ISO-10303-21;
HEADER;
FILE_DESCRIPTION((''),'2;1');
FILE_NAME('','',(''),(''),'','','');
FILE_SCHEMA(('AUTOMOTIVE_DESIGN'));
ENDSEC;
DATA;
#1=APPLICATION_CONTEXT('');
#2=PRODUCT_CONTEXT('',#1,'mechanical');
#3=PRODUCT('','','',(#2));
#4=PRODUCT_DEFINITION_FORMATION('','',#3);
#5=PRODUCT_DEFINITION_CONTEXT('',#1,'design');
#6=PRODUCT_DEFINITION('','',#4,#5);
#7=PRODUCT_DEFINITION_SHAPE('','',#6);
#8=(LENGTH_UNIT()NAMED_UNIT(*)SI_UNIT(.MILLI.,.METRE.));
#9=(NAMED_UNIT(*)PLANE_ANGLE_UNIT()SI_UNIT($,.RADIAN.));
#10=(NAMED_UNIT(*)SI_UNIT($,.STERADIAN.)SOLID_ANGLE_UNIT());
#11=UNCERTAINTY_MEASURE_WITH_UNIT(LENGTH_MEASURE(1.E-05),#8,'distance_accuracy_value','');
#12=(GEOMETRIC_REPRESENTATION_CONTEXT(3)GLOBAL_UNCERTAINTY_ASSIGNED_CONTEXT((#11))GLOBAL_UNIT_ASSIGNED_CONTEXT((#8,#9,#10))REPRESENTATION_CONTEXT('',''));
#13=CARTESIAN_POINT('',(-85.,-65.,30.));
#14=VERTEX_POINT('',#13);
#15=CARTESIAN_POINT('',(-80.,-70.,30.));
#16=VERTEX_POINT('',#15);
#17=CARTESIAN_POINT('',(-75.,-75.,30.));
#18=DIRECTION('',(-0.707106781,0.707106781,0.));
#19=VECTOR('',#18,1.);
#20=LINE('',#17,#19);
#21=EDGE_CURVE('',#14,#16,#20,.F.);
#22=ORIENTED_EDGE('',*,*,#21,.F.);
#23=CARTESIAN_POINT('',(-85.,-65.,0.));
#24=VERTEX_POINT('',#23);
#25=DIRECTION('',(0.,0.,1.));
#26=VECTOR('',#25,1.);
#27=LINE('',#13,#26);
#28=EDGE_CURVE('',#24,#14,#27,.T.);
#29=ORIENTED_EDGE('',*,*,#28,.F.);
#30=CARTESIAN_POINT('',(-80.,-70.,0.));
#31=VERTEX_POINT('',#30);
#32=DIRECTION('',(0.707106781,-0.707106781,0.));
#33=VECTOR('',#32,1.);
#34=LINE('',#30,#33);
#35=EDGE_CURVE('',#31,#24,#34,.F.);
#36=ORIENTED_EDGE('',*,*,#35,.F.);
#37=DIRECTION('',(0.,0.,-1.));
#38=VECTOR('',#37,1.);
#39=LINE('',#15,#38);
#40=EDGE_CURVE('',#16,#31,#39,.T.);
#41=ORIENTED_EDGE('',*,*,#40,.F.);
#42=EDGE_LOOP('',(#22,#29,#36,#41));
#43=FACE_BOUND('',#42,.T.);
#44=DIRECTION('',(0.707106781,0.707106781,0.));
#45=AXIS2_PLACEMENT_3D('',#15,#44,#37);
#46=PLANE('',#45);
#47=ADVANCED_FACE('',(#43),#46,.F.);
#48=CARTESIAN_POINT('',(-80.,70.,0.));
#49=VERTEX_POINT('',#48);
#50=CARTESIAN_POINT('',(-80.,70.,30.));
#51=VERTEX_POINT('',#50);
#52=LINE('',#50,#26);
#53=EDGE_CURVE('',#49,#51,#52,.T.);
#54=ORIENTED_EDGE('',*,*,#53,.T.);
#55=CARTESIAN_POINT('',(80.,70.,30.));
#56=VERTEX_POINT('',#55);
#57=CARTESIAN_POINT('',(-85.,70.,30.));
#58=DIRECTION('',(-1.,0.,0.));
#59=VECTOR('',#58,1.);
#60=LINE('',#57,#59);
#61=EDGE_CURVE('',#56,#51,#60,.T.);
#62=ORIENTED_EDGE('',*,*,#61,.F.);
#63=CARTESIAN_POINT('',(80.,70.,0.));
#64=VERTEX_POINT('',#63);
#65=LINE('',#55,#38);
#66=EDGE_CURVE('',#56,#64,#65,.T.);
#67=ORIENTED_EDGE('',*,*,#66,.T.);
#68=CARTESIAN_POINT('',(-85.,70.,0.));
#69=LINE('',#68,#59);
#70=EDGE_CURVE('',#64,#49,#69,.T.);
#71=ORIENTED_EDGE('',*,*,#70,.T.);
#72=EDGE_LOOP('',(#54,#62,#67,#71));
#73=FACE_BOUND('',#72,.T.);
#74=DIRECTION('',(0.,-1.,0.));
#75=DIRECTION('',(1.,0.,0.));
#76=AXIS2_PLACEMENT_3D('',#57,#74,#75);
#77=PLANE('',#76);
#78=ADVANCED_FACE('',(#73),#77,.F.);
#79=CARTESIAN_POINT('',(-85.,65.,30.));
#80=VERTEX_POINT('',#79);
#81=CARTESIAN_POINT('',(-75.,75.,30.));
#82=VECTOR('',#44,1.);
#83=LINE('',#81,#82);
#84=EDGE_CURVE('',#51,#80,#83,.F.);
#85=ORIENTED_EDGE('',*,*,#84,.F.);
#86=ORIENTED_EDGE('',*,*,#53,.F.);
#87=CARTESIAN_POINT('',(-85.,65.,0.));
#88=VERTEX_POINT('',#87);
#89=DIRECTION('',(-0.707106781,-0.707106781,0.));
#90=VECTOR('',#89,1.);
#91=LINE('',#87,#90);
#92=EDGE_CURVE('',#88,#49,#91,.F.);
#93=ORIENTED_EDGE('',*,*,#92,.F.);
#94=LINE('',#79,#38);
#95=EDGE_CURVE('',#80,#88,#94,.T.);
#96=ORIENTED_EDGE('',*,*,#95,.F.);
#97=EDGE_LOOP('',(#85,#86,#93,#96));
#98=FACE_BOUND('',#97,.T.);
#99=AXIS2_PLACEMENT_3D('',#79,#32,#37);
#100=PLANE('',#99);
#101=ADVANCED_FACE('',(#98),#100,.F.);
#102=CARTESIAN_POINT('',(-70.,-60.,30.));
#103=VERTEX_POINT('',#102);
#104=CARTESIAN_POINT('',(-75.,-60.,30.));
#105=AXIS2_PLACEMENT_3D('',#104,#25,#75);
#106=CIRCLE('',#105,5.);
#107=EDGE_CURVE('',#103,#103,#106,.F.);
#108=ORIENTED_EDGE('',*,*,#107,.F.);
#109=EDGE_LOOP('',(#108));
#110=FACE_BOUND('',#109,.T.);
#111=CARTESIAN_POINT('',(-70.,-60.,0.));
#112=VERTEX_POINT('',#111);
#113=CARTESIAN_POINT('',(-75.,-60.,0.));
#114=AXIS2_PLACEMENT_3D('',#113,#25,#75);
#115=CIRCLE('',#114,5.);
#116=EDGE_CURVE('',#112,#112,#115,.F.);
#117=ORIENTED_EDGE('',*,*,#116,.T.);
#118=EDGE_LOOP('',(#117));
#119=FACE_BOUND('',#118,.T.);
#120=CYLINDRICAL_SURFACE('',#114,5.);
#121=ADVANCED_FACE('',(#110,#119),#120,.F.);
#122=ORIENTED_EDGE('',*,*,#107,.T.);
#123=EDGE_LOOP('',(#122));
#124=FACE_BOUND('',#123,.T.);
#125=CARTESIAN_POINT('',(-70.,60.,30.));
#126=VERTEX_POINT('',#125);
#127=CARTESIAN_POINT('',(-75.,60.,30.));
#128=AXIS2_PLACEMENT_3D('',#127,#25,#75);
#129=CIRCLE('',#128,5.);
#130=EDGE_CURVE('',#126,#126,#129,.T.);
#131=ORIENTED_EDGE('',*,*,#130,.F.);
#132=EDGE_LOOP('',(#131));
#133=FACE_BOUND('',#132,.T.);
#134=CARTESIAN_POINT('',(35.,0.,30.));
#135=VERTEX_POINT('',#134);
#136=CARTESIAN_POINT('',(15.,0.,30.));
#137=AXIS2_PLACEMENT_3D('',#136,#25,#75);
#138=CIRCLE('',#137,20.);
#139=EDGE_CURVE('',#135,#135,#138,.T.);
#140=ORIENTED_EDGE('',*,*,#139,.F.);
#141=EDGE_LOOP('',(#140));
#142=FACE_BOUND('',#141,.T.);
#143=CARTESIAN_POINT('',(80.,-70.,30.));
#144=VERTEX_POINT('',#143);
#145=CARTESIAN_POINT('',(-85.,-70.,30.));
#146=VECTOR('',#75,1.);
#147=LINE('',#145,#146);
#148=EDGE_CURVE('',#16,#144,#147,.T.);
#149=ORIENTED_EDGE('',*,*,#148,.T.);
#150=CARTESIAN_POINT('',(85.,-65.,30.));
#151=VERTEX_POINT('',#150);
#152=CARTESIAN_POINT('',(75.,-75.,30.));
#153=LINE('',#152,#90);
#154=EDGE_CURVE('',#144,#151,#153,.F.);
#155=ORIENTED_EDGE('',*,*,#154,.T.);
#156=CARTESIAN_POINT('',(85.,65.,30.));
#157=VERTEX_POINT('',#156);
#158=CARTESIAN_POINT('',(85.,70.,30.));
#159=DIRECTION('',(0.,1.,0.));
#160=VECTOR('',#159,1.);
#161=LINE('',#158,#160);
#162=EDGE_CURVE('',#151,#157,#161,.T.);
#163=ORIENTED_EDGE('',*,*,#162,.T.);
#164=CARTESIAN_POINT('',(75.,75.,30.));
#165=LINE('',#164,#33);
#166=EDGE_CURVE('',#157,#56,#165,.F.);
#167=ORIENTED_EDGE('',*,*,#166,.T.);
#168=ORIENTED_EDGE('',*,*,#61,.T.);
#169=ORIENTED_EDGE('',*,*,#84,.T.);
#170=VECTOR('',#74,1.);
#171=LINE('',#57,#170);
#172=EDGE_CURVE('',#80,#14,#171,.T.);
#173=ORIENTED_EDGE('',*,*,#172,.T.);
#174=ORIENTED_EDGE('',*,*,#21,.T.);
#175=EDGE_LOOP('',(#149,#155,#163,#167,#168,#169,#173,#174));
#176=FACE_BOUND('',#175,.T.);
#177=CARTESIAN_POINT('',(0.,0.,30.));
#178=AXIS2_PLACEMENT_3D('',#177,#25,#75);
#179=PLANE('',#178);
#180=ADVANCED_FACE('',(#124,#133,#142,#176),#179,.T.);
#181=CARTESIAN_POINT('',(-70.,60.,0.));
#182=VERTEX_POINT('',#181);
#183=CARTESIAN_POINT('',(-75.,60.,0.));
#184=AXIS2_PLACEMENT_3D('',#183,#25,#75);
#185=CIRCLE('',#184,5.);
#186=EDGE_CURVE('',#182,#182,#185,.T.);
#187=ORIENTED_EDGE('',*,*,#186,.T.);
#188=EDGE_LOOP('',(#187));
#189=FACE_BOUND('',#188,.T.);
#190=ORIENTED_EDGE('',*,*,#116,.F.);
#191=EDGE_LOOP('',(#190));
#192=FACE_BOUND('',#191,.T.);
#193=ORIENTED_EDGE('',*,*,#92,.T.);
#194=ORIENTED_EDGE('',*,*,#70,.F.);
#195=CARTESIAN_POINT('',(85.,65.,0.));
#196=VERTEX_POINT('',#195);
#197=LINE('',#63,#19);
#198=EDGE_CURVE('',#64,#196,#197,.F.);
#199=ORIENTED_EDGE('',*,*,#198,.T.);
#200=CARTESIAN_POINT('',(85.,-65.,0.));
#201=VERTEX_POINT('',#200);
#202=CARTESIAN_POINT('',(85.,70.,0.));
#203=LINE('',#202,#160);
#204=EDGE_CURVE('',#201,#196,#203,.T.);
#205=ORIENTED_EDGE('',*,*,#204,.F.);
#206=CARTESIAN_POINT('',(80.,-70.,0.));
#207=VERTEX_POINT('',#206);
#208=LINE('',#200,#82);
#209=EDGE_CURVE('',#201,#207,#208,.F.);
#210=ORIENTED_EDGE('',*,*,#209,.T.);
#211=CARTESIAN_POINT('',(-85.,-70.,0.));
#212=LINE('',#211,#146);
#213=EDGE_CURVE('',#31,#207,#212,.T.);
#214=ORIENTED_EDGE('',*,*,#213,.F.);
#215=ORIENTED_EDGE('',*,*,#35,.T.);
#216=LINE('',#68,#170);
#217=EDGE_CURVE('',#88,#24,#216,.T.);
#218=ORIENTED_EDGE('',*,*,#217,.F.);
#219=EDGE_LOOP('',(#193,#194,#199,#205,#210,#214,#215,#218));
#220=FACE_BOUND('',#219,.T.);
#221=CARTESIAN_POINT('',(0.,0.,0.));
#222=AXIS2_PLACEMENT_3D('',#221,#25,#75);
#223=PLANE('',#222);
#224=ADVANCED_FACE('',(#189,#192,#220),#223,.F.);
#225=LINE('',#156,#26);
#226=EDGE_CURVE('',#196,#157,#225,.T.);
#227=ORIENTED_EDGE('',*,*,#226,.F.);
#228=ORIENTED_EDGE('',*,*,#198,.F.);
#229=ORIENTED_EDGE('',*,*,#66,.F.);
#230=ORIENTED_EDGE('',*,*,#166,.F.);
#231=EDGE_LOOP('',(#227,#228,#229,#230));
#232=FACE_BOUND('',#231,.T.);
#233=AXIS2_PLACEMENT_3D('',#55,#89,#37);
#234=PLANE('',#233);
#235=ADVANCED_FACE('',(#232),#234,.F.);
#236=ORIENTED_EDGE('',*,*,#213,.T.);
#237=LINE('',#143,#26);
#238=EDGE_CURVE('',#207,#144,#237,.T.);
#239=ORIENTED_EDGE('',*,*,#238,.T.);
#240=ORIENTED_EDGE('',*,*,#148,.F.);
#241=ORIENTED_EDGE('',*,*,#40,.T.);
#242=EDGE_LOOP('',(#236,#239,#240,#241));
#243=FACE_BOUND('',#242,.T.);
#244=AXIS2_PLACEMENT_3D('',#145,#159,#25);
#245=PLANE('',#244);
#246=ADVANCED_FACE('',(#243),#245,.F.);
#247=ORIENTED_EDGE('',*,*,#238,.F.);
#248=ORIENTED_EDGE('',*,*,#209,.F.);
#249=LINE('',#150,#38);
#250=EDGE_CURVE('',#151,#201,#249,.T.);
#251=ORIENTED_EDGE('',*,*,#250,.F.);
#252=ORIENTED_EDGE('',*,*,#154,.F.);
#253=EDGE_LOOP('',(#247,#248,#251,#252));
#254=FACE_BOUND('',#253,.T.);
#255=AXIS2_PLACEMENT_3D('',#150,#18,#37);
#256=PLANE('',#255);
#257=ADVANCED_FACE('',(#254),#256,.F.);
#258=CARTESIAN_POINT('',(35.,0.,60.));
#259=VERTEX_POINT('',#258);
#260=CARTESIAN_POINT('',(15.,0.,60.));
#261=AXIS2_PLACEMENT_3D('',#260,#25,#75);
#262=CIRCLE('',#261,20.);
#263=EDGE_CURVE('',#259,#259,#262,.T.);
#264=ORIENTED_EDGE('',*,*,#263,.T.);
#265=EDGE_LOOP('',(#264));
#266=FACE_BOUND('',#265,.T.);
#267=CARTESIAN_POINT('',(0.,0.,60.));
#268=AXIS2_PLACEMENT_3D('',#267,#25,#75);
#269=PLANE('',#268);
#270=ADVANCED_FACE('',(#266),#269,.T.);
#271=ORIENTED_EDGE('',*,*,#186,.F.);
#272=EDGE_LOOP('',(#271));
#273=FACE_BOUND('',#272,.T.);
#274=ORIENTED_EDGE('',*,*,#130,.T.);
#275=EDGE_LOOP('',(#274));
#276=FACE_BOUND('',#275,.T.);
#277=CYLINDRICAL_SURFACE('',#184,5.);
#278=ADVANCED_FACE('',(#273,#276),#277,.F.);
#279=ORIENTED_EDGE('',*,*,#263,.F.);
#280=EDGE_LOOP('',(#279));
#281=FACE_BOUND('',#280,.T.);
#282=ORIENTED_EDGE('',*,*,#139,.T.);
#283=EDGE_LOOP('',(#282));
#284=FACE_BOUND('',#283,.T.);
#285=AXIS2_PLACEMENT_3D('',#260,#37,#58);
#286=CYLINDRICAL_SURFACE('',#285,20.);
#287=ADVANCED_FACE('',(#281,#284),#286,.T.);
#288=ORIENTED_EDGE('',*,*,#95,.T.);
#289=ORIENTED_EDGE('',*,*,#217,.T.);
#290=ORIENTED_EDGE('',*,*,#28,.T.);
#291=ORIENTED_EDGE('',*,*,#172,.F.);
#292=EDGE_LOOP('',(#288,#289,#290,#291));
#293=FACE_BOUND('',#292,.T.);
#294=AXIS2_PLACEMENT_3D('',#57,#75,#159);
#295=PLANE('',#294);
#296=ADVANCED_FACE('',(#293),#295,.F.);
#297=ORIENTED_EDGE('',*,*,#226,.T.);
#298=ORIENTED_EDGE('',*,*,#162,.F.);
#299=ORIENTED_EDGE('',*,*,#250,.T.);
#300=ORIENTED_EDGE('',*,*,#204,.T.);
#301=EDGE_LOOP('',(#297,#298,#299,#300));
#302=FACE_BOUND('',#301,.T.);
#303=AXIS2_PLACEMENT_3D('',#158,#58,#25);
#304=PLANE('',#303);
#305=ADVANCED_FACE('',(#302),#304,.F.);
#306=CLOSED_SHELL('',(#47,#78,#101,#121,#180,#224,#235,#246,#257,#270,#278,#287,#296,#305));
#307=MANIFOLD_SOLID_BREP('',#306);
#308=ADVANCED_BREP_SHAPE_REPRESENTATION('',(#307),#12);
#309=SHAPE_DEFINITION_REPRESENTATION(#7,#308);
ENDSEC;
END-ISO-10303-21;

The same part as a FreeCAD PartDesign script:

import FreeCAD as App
import Part
import Sketcher
Q = App.Units.Quantity


def edges_at(feature, points):
    """Names of the edges that pass closest to the given points."""
    edges = feature.Shape.Edges
    near = lambda p: min(range(len(edges)), key=lambda i: edges[i].distToShape(Part.Vertex(*p))[0])
    return sorted({f"Edge{near(p) + 1}" for p in points})

doc = App.newDocument("Part")
body = doc.addObject("PartDesign::Body", "Body")

sketch1 = body.newObject("Sketcher::SketchObject", "Sketch")
sketch1.AttachmentSupport = (doc.getObject("XY_Plane"), [""])
sketch1.MapMode = "FlatFace"
sketch1.addGeometry([
    Part.LineSegment(App.Vector(-85, 70, 0), App.Vector(-85, -70, 0)),
    Part.LineSegment(App.Vector(-85, -70, 0), App.Vector(85, -70, 0)),
    Part.LineSegment(App.Vector(85, -70, 0), App.Vector(85, 70, 0)),
    Part.LineSegment(App.Vector(85, 70, 0), App.Vector(-85, 70, 0)),
], False)
sketch1.addConstraint([
    Sketcher.Constraint("Coincident", 0, 2, 1, 1),
    Sketcher.Constraint("Coincident", 1, 2, 2, 1),
    Sketcher.Constraint("Coincident", 2, 2, 3, 1),
    Sketcher.Constraint("Coincident", 3, 2, 0, 1),
    Sketcher.Constraint("Vertical", 0),
    Sketcher.Constraint("Horizontal", 1),
    Sketcher.Constraint("Vertical", 2),
    Sketcher.Constraint("Horizontal", 3),
    Sketcher.Constraint("Symmetric", 0, 2, 2, 2, -1, 1),
    Sketcher.Constraint("DistanceX", 1, 1, 1, 2, Q("170 mm")),
    Sketcher.Constraint("DistanceY", 0, 2, 0, 1, Q("140 mm")),
])
pad1 = body.newObject("PartDesign::Pad", "Pad")
pad1.Profile = sketch1
pad1.Length = 30
doc.recompute()

chamfer = body.newObject("PartDesign::Chamfer", "Chamfer")
chamfer.Base = (pad1, edges_at(pad1, [
    (85, -70, 15),
    (-85, -70, 15),
    (-85, 70, 15),
    (85, 70, 15),
]))
chamfer.Size = 5

sketch2 = body.newObject("Sketcher::SketchObject", "Sketch001")
sketch2.AttachmentSupport = (doc.getObject("XY_Plane"), [""])
sketch2.MapMode = "FlatFace"
sketch2.AttachmentOffset = App.Placement(App.Vector(0, 0, 30), App.Rotation())
sketch2.addGeometry(Part.Circle(App.Vector(15, 0, 0), App.Vector(0, 0, 1), 20), False)
sketch2.addConstraint([
    Sketcher.Constraint("PointOnObject", 0, 3, -1),
    Sketcher.Constraint("Diameter", 0, Q("40 mm")),
    Sketcher.Constraint("DistanceX", -1, 1, 0, 3, Q("15 mm")),
])
pad2 = body.newObject("PartDesign::Pad", "Pad001")
pad2.Profile = sketch2
pad2.Length = 30

sketch3 = body.newObject("Sketcher::SketchObject", "Sketch002")
sketch3.AttachmentSupport = (doc.getObject("XY_Plane"), [""])
sketch3.MapMode = "FlatFace"
sketch3.AttachmentOffset = App.Placement(App.Vector(0, 0, 30), App.Rotation())
sketch3.addGeometry([
    Part.Circle(App.Vector(-75, 60, 0), App.Vector(0, 0, 1), 5),
    Part.Circle(App.Vector(-75, -60, 0), App.Vector(0, 0, 1), 5),
], False)
sketch3.addConstraint([
    Sketcher.Constraint("Equal", 0, 1),
    Sketcher.Constraint("Symmetric", 0, 3, 1, 3, -1),
    Sketcher.Constraint("Diameter", 0, Q("10 mm")),
    Sketcher.Constraint("DistanceX", 0, 3, -1, 1, Q("75 mm")),
    Sketcher.Constraint("DistanceY", -1, 1, 0, 3, Q("60 mm")),
])
pocket1 = body.newObject("PartDesign::Pocket", "Pocket")
pocket1.Profile = sketch3
pocket1.Length = 30

doc.recompute()
